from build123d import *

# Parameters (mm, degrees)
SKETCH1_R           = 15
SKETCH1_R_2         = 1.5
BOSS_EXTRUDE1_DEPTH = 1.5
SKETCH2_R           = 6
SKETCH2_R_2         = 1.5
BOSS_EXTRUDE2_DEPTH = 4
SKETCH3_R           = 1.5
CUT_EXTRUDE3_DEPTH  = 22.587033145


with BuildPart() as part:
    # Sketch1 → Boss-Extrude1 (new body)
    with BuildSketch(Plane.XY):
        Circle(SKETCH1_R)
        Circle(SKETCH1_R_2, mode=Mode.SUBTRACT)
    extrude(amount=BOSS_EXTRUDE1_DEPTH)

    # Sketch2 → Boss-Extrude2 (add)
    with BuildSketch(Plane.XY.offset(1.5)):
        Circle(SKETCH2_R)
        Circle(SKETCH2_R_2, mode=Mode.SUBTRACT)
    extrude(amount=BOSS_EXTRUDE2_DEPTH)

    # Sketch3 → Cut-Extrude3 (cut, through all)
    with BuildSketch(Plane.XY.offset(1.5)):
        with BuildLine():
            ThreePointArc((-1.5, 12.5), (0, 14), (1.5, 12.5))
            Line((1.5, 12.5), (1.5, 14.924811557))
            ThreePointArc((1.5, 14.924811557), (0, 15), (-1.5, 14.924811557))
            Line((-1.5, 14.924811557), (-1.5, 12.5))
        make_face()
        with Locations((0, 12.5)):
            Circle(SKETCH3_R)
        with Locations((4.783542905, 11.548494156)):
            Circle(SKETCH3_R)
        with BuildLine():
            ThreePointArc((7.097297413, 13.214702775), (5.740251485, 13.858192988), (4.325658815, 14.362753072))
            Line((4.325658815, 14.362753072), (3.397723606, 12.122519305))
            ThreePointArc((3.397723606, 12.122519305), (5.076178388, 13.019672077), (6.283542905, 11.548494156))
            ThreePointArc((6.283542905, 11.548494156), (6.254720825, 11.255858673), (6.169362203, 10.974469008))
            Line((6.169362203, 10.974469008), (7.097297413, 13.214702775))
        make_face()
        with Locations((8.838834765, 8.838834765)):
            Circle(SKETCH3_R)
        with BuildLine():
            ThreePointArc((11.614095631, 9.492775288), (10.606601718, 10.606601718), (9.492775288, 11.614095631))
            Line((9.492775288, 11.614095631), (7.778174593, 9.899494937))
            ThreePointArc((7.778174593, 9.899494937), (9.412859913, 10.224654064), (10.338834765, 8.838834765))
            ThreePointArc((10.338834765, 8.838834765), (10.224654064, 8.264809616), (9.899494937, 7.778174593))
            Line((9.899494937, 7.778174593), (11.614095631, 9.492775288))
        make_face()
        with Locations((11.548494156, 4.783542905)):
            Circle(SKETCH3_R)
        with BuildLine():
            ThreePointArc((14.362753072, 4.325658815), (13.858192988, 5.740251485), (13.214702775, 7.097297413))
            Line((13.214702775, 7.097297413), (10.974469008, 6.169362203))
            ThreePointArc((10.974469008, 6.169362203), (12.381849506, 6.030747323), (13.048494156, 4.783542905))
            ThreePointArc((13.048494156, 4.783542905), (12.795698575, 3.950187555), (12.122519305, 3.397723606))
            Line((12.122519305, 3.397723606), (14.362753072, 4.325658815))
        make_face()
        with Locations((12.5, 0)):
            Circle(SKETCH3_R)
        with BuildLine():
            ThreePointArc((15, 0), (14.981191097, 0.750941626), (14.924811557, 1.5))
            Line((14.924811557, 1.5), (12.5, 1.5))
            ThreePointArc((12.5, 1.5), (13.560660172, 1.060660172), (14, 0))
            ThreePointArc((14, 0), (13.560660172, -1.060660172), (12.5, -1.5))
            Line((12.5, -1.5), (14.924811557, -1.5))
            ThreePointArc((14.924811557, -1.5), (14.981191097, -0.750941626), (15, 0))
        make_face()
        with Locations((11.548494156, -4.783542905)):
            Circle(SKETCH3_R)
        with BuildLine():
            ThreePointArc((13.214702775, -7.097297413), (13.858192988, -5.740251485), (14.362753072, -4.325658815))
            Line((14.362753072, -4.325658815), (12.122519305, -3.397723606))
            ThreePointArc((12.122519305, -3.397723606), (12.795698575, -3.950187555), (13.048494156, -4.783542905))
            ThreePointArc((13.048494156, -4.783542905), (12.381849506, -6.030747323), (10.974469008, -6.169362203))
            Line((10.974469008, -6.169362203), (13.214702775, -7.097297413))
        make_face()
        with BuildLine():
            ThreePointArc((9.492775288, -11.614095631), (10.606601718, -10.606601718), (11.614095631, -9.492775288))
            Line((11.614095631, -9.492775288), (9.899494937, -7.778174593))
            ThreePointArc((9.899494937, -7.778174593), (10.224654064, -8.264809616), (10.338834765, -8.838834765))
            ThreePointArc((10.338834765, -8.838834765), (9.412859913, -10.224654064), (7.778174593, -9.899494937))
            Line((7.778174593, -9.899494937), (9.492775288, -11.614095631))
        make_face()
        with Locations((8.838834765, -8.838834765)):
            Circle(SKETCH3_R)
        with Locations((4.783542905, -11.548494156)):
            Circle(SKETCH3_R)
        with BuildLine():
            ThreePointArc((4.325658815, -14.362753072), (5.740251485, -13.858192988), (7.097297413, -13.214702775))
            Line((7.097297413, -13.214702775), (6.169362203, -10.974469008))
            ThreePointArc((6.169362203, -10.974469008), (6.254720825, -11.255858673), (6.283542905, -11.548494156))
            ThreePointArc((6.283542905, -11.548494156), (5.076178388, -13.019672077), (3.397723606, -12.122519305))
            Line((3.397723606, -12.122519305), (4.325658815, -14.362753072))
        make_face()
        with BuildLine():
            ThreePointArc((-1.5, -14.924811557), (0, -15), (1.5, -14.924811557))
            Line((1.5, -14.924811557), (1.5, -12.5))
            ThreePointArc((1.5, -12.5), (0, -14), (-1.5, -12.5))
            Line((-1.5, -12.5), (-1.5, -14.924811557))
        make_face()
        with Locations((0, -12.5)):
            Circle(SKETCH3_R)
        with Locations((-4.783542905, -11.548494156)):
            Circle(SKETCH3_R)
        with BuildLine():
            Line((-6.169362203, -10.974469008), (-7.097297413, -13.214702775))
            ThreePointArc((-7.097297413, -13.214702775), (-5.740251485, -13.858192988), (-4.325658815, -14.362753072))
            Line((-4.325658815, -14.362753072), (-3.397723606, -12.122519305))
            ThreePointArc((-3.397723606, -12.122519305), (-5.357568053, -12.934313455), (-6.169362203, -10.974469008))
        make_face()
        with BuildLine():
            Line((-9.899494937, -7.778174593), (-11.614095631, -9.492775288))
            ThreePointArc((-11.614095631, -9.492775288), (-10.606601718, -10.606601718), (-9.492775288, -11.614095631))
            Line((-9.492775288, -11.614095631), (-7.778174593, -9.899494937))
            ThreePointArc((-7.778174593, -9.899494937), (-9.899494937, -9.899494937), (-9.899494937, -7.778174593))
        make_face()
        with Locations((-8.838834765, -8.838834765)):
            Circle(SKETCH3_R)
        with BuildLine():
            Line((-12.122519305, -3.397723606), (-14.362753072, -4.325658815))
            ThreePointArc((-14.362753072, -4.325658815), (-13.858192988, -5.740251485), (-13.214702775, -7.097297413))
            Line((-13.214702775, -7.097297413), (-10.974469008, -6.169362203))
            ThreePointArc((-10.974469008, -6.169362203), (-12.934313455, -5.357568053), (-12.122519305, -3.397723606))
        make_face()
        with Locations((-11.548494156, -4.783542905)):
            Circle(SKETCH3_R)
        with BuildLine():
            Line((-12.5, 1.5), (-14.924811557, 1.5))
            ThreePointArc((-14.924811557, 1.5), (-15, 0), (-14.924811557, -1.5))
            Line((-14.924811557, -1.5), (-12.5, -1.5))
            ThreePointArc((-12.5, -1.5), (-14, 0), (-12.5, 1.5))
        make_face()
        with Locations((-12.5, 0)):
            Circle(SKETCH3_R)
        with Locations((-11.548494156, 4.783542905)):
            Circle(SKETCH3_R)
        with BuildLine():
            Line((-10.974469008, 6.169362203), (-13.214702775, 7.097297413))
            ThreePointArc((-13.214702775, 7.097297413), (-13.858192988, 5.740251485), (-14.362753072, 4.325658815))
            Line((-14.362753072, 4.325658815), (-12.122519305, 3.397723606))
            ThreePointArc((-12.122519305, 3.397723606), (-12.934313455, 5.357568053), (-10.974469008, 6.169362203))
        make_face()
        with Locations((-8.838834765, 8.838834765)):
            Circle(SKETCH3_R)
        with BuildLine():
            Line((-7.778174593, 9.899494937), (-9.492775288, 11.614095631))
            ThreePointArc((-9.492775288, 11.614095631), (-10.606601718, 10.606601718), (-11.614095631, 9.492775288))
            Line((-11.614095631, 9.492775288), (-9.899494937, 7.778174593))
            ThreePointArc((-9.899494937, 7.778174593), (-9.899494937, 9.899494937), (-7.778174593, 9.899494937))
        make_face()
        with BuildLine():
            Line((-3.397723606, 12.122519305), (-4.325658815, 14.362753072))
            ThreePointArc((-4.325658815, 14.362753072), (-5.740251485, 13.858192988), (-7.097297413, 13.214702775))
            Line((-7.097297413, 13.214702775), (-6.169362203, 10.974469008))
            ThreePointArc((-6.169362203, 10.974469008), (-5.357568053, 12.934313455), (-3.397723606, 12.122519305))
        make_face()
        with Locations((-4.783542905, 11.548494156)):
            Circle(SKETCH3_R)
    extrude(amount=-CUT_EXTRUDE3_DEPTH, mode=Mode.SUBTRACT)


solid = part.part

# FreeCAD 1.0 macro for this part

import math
import FreeCAD as App
import Part
import Sketcher

V = App.Vector
Q = App.Units.Quantity

doc = App.newDocument("Part")
body = doc.addObject("PartDesign::Body", "Body")

# Sketch on XY plane
sketch1 = body.newObject("Sketcher::SketchObject", "Sketch")
sketch1.AttachmentSupport = (doc.getObject("XY_Plane"), [""])
sketch1.MapMode = "FlatFace"
sketch1.addGeometry(Part.Circle(V(0, 0, 0), V(0, 0, 1), 15), False)
sketch1.addGeometry(Part.Circle(V(0, 0, 0), V(0, 0, 1), 1.5), False)
sketch1.addConstraint(Sketcher.Constraint("Coincident", 0, 3, -1, 1))
sketch1.addConstraint(Sketcher.Constraint("Coincident", 1, 3, -1, 1))
sketch1.addConstraint(Sketcher.Constraint("Diameter", 0, 30.0))
sketch1.addConstraint(Sketcher.Constraint("Diameter", 1, 3.0))
pad1 = body.newObject("PartDesign::Pad", "Pad")
pad1.Profile = sketch1
pad1.Length = 1.5

# Sketch on XY plane
sketch2 = body.newObject("Sketcher::SketchObject", "Sketch001")
sketch2.AttachmentSupport = (doc.getObject("XY_Plane"), [""])
sketch2.MapMode = "FlatFace"
sketch2.AttachmentOffset = App.Placement(V(0, 0, 1.5), App.Rotation())
sketch2.addGeometry(Part.Circle(V(0, 0, 0), V(0, 0, 1), 6), False)
sketch2.addGeometry(Part.Circle(V(0, 0, 0), V(0, 0, 1), 1.5), False)
sketch2.addConstraint(Sketcher.Constraint("Coincident", 0, 3, -1, 1))
sketch2.addConstraint(Sketcher.Constraint("Coincident", 1, 3, -1, 1))
sketch2.addConstraint(Sketcher.Constraint("Diameter", 0, 12.0))
sketch2.addConstraint(Sketcher.Constraint("Diameter", 1, 3.0))
pad2 = body.newObject("PartDesign::Pad", "Pad001")
pad2.Profile = sketch2
pad2.Length = 4

# Sketch on XY plane
sketch3 = body.newObject("Sketcher::SketchObject", "Sketch002")
sketch3.AttachmentSupport = (doc.getObject("XY_Plane"), [""])
sketch3.MapMode = "FlatFace"
sketch3.AttachmentOffset = App.Placement(V(0, 0, 1.5), App.Rotation())
sketch3.addGeometry(Part.LineSegment(V(1.5, 12.5, 0), V(1.5, 14.924812, 0)), False)
sketch3.addGeometry(Part.ArcOfCircle(Part.Circle(V(0, 0, 0), V(0, 0, 1), 15), math.radians(84.26083), math.radians(95.73917)), False)
sketch3.addGeometry(Part.LineSegment(V(-1.5, 14.924812, 0), V(-1.5, 12.5, 0)), False)
sketch3.addGeometry(Part.ArcOfCircle(Part.Circle(V(0, 12.5, 0), V(0, 0, 1), 1.5), math.radians(180), math.radians(360)), False)
sketch3.addGeometry(Part.ArcOfCircle(Part.Circle(V(4.783543, 11.548494, 0), V(0, 0, 1), 1.5), math.radians(157.5), math.radians(337.5)), False)
sketch3.addGeometry(Part.LineSegment(V(6.169362, 10.974469, 0), V(7.097297, 13.214703, 0)), False)
sketch3.addGeometry(Part.ArcOfCircle(Part.Circle(V(0, 0, 0), V(0, 0, 1), 15), math.radians(61.76083), math.radians(73.239171)), False)
sketch3.addGeometry(Part.LineSegment(V(4.325659, 14.362753, 0), V(3.397724, 12.122519, 0)), False)
sketch3.addGeometry(Part.ArcOfCircle(Part.Circle(V(8.838835, 8.838835, 0), V(0, 0, 1), 1.5), math.radians(135), math.radians(315)), False)
sketch3.addGeometry(Part.LineSegment(V(9.899495, 7.778175, 0), V(11.614096, 9.492775, 0)), False)
sketch3.addGeometry(Part.ArcOfCircle(Part.Circle(V(0, 0, 0), V(0, 0, 1), 15), math.radians(39.260829), math.radians(50.739171)), False)
sketch3.addGeometry(Part.LineSegment(V(9.492775, 11.614096, 0), V(7.778175, 9.899495, 0)), False)
sketch3.addGeometry(Part.ArcOfCircle(Part.Circle(V(11.548494, 4.783543, 0), V(0, 0, 1), 1.5), math.radians(112.5), math.radians(292.5)), False)
sketch3.addGeometry(Part.LineSegment(V(12.122519, 3.397724, 0), V(14.362753, 4.325659, 0)), False)
sketch3.addGeometry(Part.ArcOfCircle(Part.Circle(V(0, 0, 0), V(0, 0, 1), 15), math.radians(16.760829), math.radians(28.23917)), False)
sketch3.addGeometry(Part.LineSegment(V(13.214703, 7.097297, 0), V(10.974469, 6.169362, 0)), False)
sketch3.addGeometry(Part.ArcOfCircle(Part.Circle(V(12.5, 0, 0), V(0, 0, 1), 1.5), math.radians(90), math.radians(270)), False)
sketch3.addGeometry(Part.LineSegment(V(12.5, -1.5, 0), V(14.924812, -1.5, 0)), False)
sketch3.addGeometry(Part.ArcOfCircle(Part.Circle(V(0, 0, 0), V(0, 0, 1), 15), math.radians(-5.73917), math.radians(0)), False)
sketch3.addGeometry(Part.ArcOfCircle(Part.Circle(V(0, 0, 0), V(0, 0, 1), 15), math.radians(0), math.radians(5.73917)), False)
sketch3.addGeometry(Part.LineSegment(V(14.924812, 1.5, 0), V(12.5, 1.5, 0)), False)
sketch3.addGeometry(Part.ArcOfCircle(Part.Circle(V(11.548494, -4.783543, 0), V(0, 0, 1), 1.5), math.radians(67.5), math.radians(247.5)), False)
sketch3.addGeometry(Part.LineSegment(V(10.974469, -6.169362, 0), V(13.214703, -7.097297, 0)), False)
sketch3.addGeometry(Part.ArcOfCircle(Part.Circle(V(0, 0, 0), V(0, 0, 1), 15), math.radians(-28.23917), math.radians(-16.760829)), False)
sketch3.addGeometry(Part.LineSegment(V(14.362753, -4.325659, 0), V(12.122519, -3.397724, 0)), False)
sketch3.addGeometry(Part.ArcOfCircle(Part.Circle(V(0, 0, 0), V(0, 0, 1), 15), math.radians(-50.739171), math.radians(-39.260829)), False)
sketch3.addGeometry(Part.LineSegment(V(11.614096, -9.492775, 0), V(9.899495, -7.778175, 0)), False)
sketch3.addGeometry(Part.ArcOfCircle(Part.Circle(V(8.838835, -8.838835, 0), V(0, 0, 1), 1.5), math.radians(45), math.radians(225)), False)
sketch3.addGeometry(Part.LineSegment(V(7.778175, -9.899495, 0), V(9.492775, -11.614096, 0)), False)
sketch3.addGeometry(Part.ArcOfCircle(Part.Circle(V(4.783543, -11.548494, 0), V(0, 0, 1), 1.5), math.radians(22.5), math.radians(202.5)), False)
sketch3.addGeometry(Part.LineSegment(V(3.397724, -12.122519, 0), V(4.325659, -14.362753, 0)), False)
sketch3.addGeometry(Part.ArcOfCircle(Part.Circle(V(0, 0, 0), V(0, 0, 1), 15), math.radians(-73.239171), math.radians(-61.76083)), False)
sketch3.addGeometry(Part.LineSegment(V(7.097297, -13.214703, 0), V(6.169362, -10.974469, 0)), False)
sketch3.addGeometry(Part.ArcOfCircle(Part.Circle(V(0, 0, 0), V(0, 0, 1), 15), math.radians(-95.73917), math.radians(-84.26083)), False)
sketch3.addGeometry(Part.LineSegment(V(1.5, -14.924812, 0), V(1.5, -12.5, 0)), False)
sketch3.addGeometry(Part.ArcOfCircle(Part.Circle(V(0, -12.5, 0), V(0, 0, 1), 1.5), math.radians(0), math.radians(180)), False)
sketch3.addGeometry(Part.LineSegment(V(-1.5, -12.5, 0), V(-1.5, -14.924812, 0)), False)
sketch3.addGeometry(Part.LineSegment(V(-6.169362, -10.974469, 0), V(-7.097297, -13.214703, 0)), False)
sketch3.addGeometry(Part.ArcOfCircle(Part.Circle(V(0, 0, 0), V(0, 0, 1), 15), math.radians(-118.23917), math.radians(-106.760829)), False)
sketch3.addGeometry(Part.LineSegment(V(-4.325659, -14.362753, 0), V(-3.397724, -12.122519, 0)), False)
sketch3.addGeometry(Part.ArcOfCircle(Part.Circle(V(-4.783543, -11.548494, 0), V(0, 0, 1), 1.5), math.radians(-22.5), math.radians(157.5)), False)
sketch3.addGeometry(Part.LineSegment(V(-9.899495, -7.778175, 0), V(-11.614096, -9.492775, 0)), False)
sketch3.addGeometry(Part.ArcOfCircle(Part.Circle(V(0, 0, 0), V(0, 0, 1), 15), math.radians(-140.739171), math.radians(-129.260829)), False)
sketch3.addGeometry(Part.LineSegment(V(-9.492775, -11.614096, 0), V(-7.778175, -9.899495, 0)), False)
sketch3.addGeometry(Part.ArcOfCircle(Part.Circle(V(-8.838835, -8.838835, 0), V(0, 0, 1), 1.5), math.radians(-45), math.radians(135)), False)
sketch3.addGeometry(Part.LineSegment(V(-12.122519, -3.397724, 0), V(-14.362753, -4.325659, 0)), False)
sketch3.addGeometry(Part.ArcOfCircle(Part.Circle(V(0, 0, 0), V(0, 0, 1), 15), math.radians(-163.239171), math.radians(-151.76083)), False)
sketch3.addGeometry(Part.LineSegment(V(-13.214703, -7.097297, 0), V(-10.974469, -6.169362, 0)), False)
sketch3.addGeometry(Part.ArcOfCircle(Part.Circle(V(-11.548494, -4.783543, 0), V(0, 0, 1), 1.5), math.radians(-67.5), math.radians(112.5)), False)
sketch3.addGeometry(Part.LineSegment(V(-12.5, 1.5, 0), V(-14.924812, 1.5, 0)), False)
sketch3.addGeometry(Part.ArcOfCircle(Part.Circle(V(0, 0, 0), V(0, 0, 1), 15), math.radians(174.26083), math.radians(185.73917)), False)
sketch3.addGeometry(Part.LineSegment(V(-14.924812, -1.5, 0), V(-12.5, -1.5, 0)), False)
sketch3.addGeometry(Part.ArcOfCircle(Part.Circle(V(-12.5, 0, 0), V(0, 0, 1), 1.5), math.radians(-90), math.radians(90)), False)
sketch3.addGeometry(Part.LineSegment(V(-10.974469, 6.169362, 0), V(-13.214703, 7.097297, 0)), False)
sketch3.addGeometry(Part.ArcOfCircle(Part.Circle(V(0, 0, 0), V(0, 0, 1), 15), math.radians(151.76083), math.radians(163.239171)), False)
sketch3.addGeometry(Part.LineSegment(V(-14.362753, 4.325659, 0), V(-12.122519, 3.397724, 0)), False)
sketch3.addGeometry(Part.ArcOfCircle(Part.Circle(V(-11.548494, 4.783543, 0), V(0, 0, 1), 1.5), math.radians(-112.5), math.radians(67.5)), False)
sketch3.addGeometry(Part.LineSegment(V(-7.778175, 9.899495, 0), V(-9.492775, 11.614096, 0)), False)
sketch3.addGeometry(Part.ArcOfCircle(Part.Circle(V(0, 0, 0), V(0, 0, 1), 15), math.radians(129.260829), math.radians(140.739171)), False)
sketch3.addGeometry(Part.LineSegment(V(-11.614096, 9.492775, 0), V(-9.899495, 7.778175, 0)), False)
sketch3.addGeometry(Part.ArcOfCircle(Part.Circle(V(-8.838835, 8.838835, 0), V(0, 0, 1), 1.5), math.radians(-135), math.radians(45)), False)
sketch3.addGeometry(Part.LineSegment(V(-3.397724, 12.122519, 0), V(-4.325659, 14.362753, 0)), False)
sketch3.addGeometry(Part.ArcOfCircle(Part.Circle(V(0, 0, 0), V(0, 0, 1), 15), math.radians(106.760829), math.radians(118.23917)), False)
sketch3.addGeometry(Part.LineSegment(V(-7.097297, 13.214703, 0), V(-6.169362, 10.974469, 0)), False)
sketch3.addGeometry(Part.ArcOfCircle(Part.Circle(V(-4.783543, 11.548494, 0), V(0, 0, 1), 1.5), math.radians(-157.5), math.radians(22.5)), False)
sketch3.addConstraint(Sketcher.Constraint("Coincident", 0, 2, 1, 1))
sketch3.addConstraint(Sketcher.Constraint("Coincident", 1, 2, 2, 1))
sketch3.addConstraint(Sketcher.Constraint("Tangent", 2, 2, 3, 1))
sketch3.addConstraint(Sketcher.Constraint("Tangent", 3, 2, 0, 1))
sketch3.addConstraint(Sketcher.Constraint("Tangent", 4, 2, 5, 1))
sketch3.addConstraint(Sketcher.Constraint("Coincident", 5, 2, 6, 1))
sketch3.addConstraint(Sketcher.Constraint("Coincident", 6, 2, 7, 1))
sketch3.addConstraint(Sketcher.Constraint("Tangent", 7, 2, 4, 1))
sketch3.addConstraint(Sketcher.Constraint("Tangent", 8, 2, 9, 1))
sketch3.addConstraint(Sketcher.Constraint("Coincident", 9, 2, 10, 1))
sketch3.addConstraint(Sketcher.Constraint("Coincident", 10, 2, 11, 1))
sketch3.addConstraint(Sketcher.Constraint("Tangent", 11, 2, 8, 1))
sketch3.addConstraint(Sketcher.Constraint("Tangent", 12, 2, 13, 1))
sketch3.addConstraint(Sketcher.Constraint("Coincident", 13, 2, 14, 1))
sketch3.addConstraint(Sketcher.Constraint("Coincident", 14, 2, 15, 1))
sketch3.addConstraint(Sketcher.Constraint("Tangent", 15, 2, 12, 1))
sketch3.addConstraint(Sketcher.Constraint("Tangent", 16, 2, 17, 1))
sketch3.addConstraint(Sketcher.Constraint("Coincident", 17, 2, 18, 1))
sketch3.addConstraint(Sketcher.Constraint("Tangent", 18, 2, 19, 1))
sketch3.addConstraint(Sketcher.Constraint("Coincident", 19, 2, 20, 1))
sketch3.addConstraint(Sketcher.Constraint("Tangent", 20, 2, 16, 1))
sketch3.addConstraint(Sketcher.Constraint("Tangent", 21, 2, 22, 1))
sketch3.addConstraint(Sketcher.Constraint("Coincident", 22, 2, 23, 1))
sketch3.addConstraint(Sketcher.Constraint("Coincident", 23, 2, 24, 1))
sketch3.addConstraint(Sketcher.Constraint("Tangent", 24, 2, 21, 1))
sketch3.addConstraint(Sketcher.Constraint("Coincident", 25, 2, 26, 1))
sketch3.addConstraint(Sketcher.Constraint("Tangent", 26, 2, 27, 1))
sketch3.addConstraint(Sketcher.Constraint("Tangent", 27, 2, 28, 1))
sketch3.addConstraint(Sketcher.Constraint("Coincident", 28, 2, 25, 1))
sketch3.addConstraint(Sketcher.Constraint("Tangent", 29, 2, 30, 1))
sketch3.addConstraint(Sketcher.Constraint("Coincident", 30, 2, 31, 1))
sketch3.addConstraint(Sketcher.Constraint("Coincident", 31, 2, 32, 1))
sketch3.addConstraint(Sketcher.Constraint("Tangent", 32, 2, 29, 1))
sketch3.addConstraint(Sketcher.Constraint("Coincident", 33, 2, 34, 1))
sketch3.addConstraint(Sketcher.Constraint("Tangent", 34, 2, 35, 1))
sketch3.addConstraint(Sketcher.Constraint("Tangent", 35, 2, 36, 1))
sketch3.addConstraint(Sketcher.Constraint("Coincident", 36, 2, 33, 1))
sketch3.addConstraint(Sketcher.Constraint("Coincident", 37, 2, 38, 1))
sketch3.addConstraint(Sketcher.Constraint("Coincident", 38, 2, 39, 1))
sketch3.addConstraint(Sketcher.Constraint("Tangent", 39, 2, 40, 1))
sketch3.addConstraint(Sketcher.Constraint("Tangent", 40, 2, 37, 1))
sketch3.addConstraint(Sketcher.Constraint("Coincident", 41, 2, 42, 1))
sketch3.addConstraint(Sketcher.Constraint("Coincident", 42, 2, 43, 1))
sketch3.addConstraint(Sketcher.Constraint("Tangent", 43, 2, 44, 1))
sketch3.addConstraint(Sketcher.Constraint("Tangent", 44, 2, 41, 1))
sketch3.addConstraint(Sketcher.Constraint("Coincident", 45, 2, 46, 1))
sketch3.addConstraint(Sketcher.Constraint("Coincident", 46, 2, 47, 1))
sketch3.addConstraint(Sketcher.Constraint("Tangent", 47, 2, 48, 1))
sketch3.addConstraint(Sketcher.Constraint("Tangent", 48, 2, 45, 1))
sketch3.addConstraint(Sketcher.Constraint("Coincident", 49, 2, 50, 1))
sketch3.addConstraint(Sketcher.Constraint("Coincident", 50, 2, 51, 1))
sketch3.addConstraint(Sketcher.Constraint("Tangent", 51, 2, 52, 1))
sketch3.addConstraint(Sketcher.Constraint("Tangent", 52, 2, 49, 1))
sketch3.addConstraint(Sketcher.Constraint("Coincident", 53, 2, 54, 1))
sketch3.addConstraint(Sketcher.Constraint("Coincident", 54, 2, 55, 1))
sketch3.addConstraint(Sketcher.Constraint("Tangent", 55, 2, 56, 1))
sketch3.addConstraint(Sketcher.Constraint("Tangent", 56, 2, 53, 1))
sketch3.addConstraint(Sketcher.Constraint("Coincident", 57, 2, 58, 1))
sketch3.addConstraint(Sketcher.Constraint("Coincident", 58, 2, 59, 1))
sketch3.addConstraint(Sketcher.Constraint("Tangent", 59, 2, 60, 1))
sketch3.addConstraint(Sketcher.Constraint("Tangent", 60, 2, 57, 1))
sketch3.addConstraint(Sketcher.Constraint("Coincident", 61, 2, 62, 1))
sketch3.addConstraint(Sketcher.Constraint("Coincident", 62, 2, 63, 1))
sketch3.addConstraint(Sketcher.Constraint("Tangent", 63, 2, 64, 1))
sketch3.addConstraint(Sketcher.Constraint("Tangent", 64, 2, 61, 1))
sketch3.addConstraint(Sketcher.Constraint("Vertical", 0))
sketch3.addConstraint(Sketcher.Constraint("Vertical", 2))
sketch3.addConstraint(Sketcher.Constraint("Horizontal", 17))
sketch3.addConstraint(Sketcher.Constraint("Horizontal", 20))
sketch3.addConstraint(Sketcher.Constraint("Vertical", 34))
sketch3.addConstraint(Sketcher.Constraint("Vertical", 36))
sketch3.addConstraint(Sketcher.Constraint("Horizontal", 49))
sketch3.addConstraint(Sketcher.Constraint("Horizontal", 51))
sketch3.addConstraint(Sketcher.Constraint("Coincident", 1, 3, -1, 1))
sketch3.addConstraint(Sketcher.Constraint("Coincident", 6, 3, -1, 1))
sketch3.addConstraint(Sketcher.Constraint("Coincident", 10, 3, -1, 1))
sketch3.addConstraint(Sketcher.Constraint("Coincident", 14, 3, -1, 1))
sketch3.addConstraint(Sketcher.Constraint("Coincident", 18, 3, -1, 1))
sketch3.addConstraint(Sketcher.Constraint("Coincident", 23, 3, -1, 1))
sketch3.addConstraint(Sketcher.Constraint("Coincident", 25, 3, -1, 1))
sketch3.addConstraint(Sketcher.Constraint("Coincident", 31, 3, -1, 1))
sketch3.addConstraint(Sketcher.Constraint("Coincident", 33, 3, -1, 1))
sketch3.addConstraint(Sketcher.Constraint("Coincident", 38, 3, -1, 1))
sketch3.addConstraint(Sketcher.Constraint("Coincident", 42, 3, -1, 1))
sketch3.addConstraint(Sketcher.Constraint("Coincident", 46, 3, -1, 1))
sketch3.addConstraint(Sketcher.Constraint("Coincident", 50, 3, -1, 1))
sketch3.addConstraint(Sketcher.Constraint("Coincident", 54, 3, -1, 1))
sketch3.addConstraint(Sketcher.Constraint("Coincident", 58, 3, -1, 1))
sketch3.addConstraint(Sketcher.Constraint("Coincident", 62, 3, -1, 1))
sketch3.addConstraint(Sketcher.Constraint("Equal", 3, 4))
sketch3.addConstraint(Sketcher.Constraint("Equal", 1, 6))
sketch3.addConstraint(Sketcher.Constraint("Equal", 4, 8))
sketch3.addConstraint(Sketcher.Constraint("Equal", 6, 10))
sketch3.addConstraint(Sketcher.Constraint("Equal", 8, 12))
sketch3.addConstraint(Sketcher.Constraint("Equal", 10, 14))
sketch3.addConstraint(Sketcher.Constraint("Equal", 12, 16))
sketch3.addConstraint(Sketcher.Constraint("Equal", 14, 18))
sketch3.addConstraint(Sketcher.Constraint("Equal", 18, 19))
sketch3.addConstraint(Sketcher.Constraint("Equal", 16, 21))
sketch3.addConstraint(Sketcher.Constraint("Equal", 19, 23))
sketch3.addConstraint(Sketcher.Constraint("Equal", 23, 25))
sketch3.addConstraint(Sketcher.Constraint("Equal", 21, 27))
sketch3.addConstraint(Sketcher.Constraint("Equal", 27, 29))
sketch3.addConstraint(Sketcher.Constraint("Equal", 25, 31))
sketch3.addConstraint(Sketcher.Constraint("Equal", 31, 33))
sketch3.addConstraint(Sketcher.Constraint("Equal", 29, 35))
sketch3.addConstraint(Sketcher.Constraint("Equal", 33, 38))
sketch3.addConstraint(Sketcher.Constraint("Equal", 35, 40))
sketch3.addConstraint(Sketcher.Constraint("Equal", 38, 42))
sketch3.addConstraint(Sketcher.Constraint("Equal", 40, 44))
sketch3.addConstraint(Sketcher.Constraint("Equal", 42, 46))
sketch3.addConstraint(Sketcher.Constraint("Equal", 44, 48))
sketch3.addConstraint(Sketcher.Constraint("Equal", 46, 50))
sketch3.addConstraint(Sketcher.Constraint("Equal", 48, 52))
sketch3.addConstraint(Sketcher.Constraint("Equal", 50, 54))
sketch3.addConstraint(Sketcher.Constraint("Equal", 52, 56))
sketch3.addConstraint(Sketcher.Constraint("Equal", 54, 58))
sketch3.addConstraint(Sketcher.Constraint("Equal", 56, 60))
sketch3.addConstraint(Sketcher.Constraint("Equal", 58, 62))
sketch3.addConstraint(Sketcher.Constraint("Equal", 60, 64))
sketch3.addConstraint(Sketcher.Constraint("Symmetric", 3, 3, 35, 3, -1, 1))
sketch3.addConstraint(Sketcher.Constraint("Symmetric", 4, 3, 40, 3, -1, 1))
sketch3.addConstraint(Sketcher.Constraint("Symmetric", 8, 3, 44, 3, -1, 1))
sketch3.addConstraint(Sketcher.Constraint("Symmetric", 12, 3, 48, 3, -1, 1))
sketch3.addConstraint(Sketcher.Constraint("Symmetric", 16, 3, 52, 3, -1, 1))
sketch3.addConstraint(Sketcher.Constraint("Symmetric", 21, 3, 56, 3, -1, 1))
sketch3.addConstraint(Sketcher.Constraint("Symmetric", 27, 3, 60, 3, -1, 1))
sketch3.addConstraint(Sketcher.Constraint("Symmetric", 29, 3, 64, 3, -1, 1))
sketch3.addConstraint(Sketcher.Constraint("Symmetric", 29, 3, 40, 3, -2))
sketch3.addConstraint(Sketcher.Constraint("Symmetric", 27, 3, 44, 3, -2))
sketch3.addConstraint(Sketcher.Constraint("Symmetric", 21, 3, 48, 3, -2))
sketch3.addConstraint(Sketcher.Constraint("PointOnObject", 3, 3, -2))
sketch3.addConstraint(Sketcher.Constraint("PointOnObject", 16, 3, -1))
sketch3.addConstraint(Sketcher.Constraint("PointOnObject", 18, 2, -1))
sketch3.addConstraint(Sketcher.Constraint("Parallel", 5, 7))
sketch3.addConstraint(Sketcher.Constraint("Parallel", 9, 11))
sketch3.addConstraint(Sketcher.Constraint("Parallel", 13, 15))
sketch3.addConstraint(Sketcher.Constraint("Perpendicular", 7, 22))
sketch3.addConstraint(Sketcher.Constraint("Parallel", 22, 24))
sketch3.addConstraint(Sketcher.Constraint("Perpendicular", 11, 26))
sketch3.addConstraint(Sketcher.Constraint("Parallel", 26, 28))
sketch3.addConstraint(Sketcher.Constraint("Perpendicular", 15, 30))
sketch3.addConstraint(Sketcher.Constraint("Parallel", 30, 32))
sketch3.addConstraint(Sketcher.Constraint("Perpendicular", 24, 37))
sketch3.addConstraint(Sketcher.Constraint("Parallel", 37, 39))
sketch3.addConstraint(Sketcher.Constraint("Perpendicular", 28, 41))
sketch3.addConstraint(Sketcher.Constraint("Parallel", 41, 43))
sketch3.addConstraint(Sketcher.Constraint("Perpendicular", 32, 45))
sketch3.addConstraint(Sketcher.Constraint("Parallel", 45, 47))
sketch3.addConstraint(Sketcher.Constraint("Perpendicular", 39, 53))
sketch3.addConstraint(Sketcher.Constraint("Parallel", 53, 55))
sketch3.addConstraint(Sketcher.Constraint("Perpendicular", 43, 57))
sketch3.addConstraint(Sketcher.Constraint("Parallel", 57, 59))
sketch3.addConstraint(Sketcher.Constraint("Perpendicular", 47, 61))
sketch3.addConstraint(Sketcher.Constraint("Parallel", 61, 63))
sketch3.addConstraint(Sketcher.Constraint("Horizontal", 31, 2, 37, 2))
sketch3.addConstraint(Sketcher.Constraint("Horizontal", 25, 2, 41, 2))
sketch3.addConstraint(Sketcher.Constraint("Equal", 51, 0))
sketch3.addConstraint(Sketcher.Constraint("Equal", 5, 7))
sketch3.addConstraint(Sketcher.Constraint("Equal", 7, 9))
sketch3.addConstraint(Sketcher.Constraint("Equal", 9, 11))
sketch3.addConstraint(Sketcher.Constraint("Equal", 11, 13))
sketch3.addConstraint(Sketcher.Constraint("Equal", 13, 15))
sketch3.addConstraint(Sketcher.Constraint("Radius", 1, 15.0))
sketch3.addConstraint(Sketcher.Constraint("Radius", 3, 1.5))
sketch3.addConstraint(Sketcher.Constraint("Angle", 5, Q("67.5 deg")))
sketch3.addConstraint(Sketcher.Constraint("DistanceY", -1, 1, 3, 3, 12.5))
sketch3.addConstraint(Sketcher.Constraint("Distance", 5, 2.424812))
pocket1 = body.newObject("PartDesign::Pocket", "Pocket")
pocket1.Profile = sketch3
pocket1.Type = "ThroughAll"

doc.recompute()
